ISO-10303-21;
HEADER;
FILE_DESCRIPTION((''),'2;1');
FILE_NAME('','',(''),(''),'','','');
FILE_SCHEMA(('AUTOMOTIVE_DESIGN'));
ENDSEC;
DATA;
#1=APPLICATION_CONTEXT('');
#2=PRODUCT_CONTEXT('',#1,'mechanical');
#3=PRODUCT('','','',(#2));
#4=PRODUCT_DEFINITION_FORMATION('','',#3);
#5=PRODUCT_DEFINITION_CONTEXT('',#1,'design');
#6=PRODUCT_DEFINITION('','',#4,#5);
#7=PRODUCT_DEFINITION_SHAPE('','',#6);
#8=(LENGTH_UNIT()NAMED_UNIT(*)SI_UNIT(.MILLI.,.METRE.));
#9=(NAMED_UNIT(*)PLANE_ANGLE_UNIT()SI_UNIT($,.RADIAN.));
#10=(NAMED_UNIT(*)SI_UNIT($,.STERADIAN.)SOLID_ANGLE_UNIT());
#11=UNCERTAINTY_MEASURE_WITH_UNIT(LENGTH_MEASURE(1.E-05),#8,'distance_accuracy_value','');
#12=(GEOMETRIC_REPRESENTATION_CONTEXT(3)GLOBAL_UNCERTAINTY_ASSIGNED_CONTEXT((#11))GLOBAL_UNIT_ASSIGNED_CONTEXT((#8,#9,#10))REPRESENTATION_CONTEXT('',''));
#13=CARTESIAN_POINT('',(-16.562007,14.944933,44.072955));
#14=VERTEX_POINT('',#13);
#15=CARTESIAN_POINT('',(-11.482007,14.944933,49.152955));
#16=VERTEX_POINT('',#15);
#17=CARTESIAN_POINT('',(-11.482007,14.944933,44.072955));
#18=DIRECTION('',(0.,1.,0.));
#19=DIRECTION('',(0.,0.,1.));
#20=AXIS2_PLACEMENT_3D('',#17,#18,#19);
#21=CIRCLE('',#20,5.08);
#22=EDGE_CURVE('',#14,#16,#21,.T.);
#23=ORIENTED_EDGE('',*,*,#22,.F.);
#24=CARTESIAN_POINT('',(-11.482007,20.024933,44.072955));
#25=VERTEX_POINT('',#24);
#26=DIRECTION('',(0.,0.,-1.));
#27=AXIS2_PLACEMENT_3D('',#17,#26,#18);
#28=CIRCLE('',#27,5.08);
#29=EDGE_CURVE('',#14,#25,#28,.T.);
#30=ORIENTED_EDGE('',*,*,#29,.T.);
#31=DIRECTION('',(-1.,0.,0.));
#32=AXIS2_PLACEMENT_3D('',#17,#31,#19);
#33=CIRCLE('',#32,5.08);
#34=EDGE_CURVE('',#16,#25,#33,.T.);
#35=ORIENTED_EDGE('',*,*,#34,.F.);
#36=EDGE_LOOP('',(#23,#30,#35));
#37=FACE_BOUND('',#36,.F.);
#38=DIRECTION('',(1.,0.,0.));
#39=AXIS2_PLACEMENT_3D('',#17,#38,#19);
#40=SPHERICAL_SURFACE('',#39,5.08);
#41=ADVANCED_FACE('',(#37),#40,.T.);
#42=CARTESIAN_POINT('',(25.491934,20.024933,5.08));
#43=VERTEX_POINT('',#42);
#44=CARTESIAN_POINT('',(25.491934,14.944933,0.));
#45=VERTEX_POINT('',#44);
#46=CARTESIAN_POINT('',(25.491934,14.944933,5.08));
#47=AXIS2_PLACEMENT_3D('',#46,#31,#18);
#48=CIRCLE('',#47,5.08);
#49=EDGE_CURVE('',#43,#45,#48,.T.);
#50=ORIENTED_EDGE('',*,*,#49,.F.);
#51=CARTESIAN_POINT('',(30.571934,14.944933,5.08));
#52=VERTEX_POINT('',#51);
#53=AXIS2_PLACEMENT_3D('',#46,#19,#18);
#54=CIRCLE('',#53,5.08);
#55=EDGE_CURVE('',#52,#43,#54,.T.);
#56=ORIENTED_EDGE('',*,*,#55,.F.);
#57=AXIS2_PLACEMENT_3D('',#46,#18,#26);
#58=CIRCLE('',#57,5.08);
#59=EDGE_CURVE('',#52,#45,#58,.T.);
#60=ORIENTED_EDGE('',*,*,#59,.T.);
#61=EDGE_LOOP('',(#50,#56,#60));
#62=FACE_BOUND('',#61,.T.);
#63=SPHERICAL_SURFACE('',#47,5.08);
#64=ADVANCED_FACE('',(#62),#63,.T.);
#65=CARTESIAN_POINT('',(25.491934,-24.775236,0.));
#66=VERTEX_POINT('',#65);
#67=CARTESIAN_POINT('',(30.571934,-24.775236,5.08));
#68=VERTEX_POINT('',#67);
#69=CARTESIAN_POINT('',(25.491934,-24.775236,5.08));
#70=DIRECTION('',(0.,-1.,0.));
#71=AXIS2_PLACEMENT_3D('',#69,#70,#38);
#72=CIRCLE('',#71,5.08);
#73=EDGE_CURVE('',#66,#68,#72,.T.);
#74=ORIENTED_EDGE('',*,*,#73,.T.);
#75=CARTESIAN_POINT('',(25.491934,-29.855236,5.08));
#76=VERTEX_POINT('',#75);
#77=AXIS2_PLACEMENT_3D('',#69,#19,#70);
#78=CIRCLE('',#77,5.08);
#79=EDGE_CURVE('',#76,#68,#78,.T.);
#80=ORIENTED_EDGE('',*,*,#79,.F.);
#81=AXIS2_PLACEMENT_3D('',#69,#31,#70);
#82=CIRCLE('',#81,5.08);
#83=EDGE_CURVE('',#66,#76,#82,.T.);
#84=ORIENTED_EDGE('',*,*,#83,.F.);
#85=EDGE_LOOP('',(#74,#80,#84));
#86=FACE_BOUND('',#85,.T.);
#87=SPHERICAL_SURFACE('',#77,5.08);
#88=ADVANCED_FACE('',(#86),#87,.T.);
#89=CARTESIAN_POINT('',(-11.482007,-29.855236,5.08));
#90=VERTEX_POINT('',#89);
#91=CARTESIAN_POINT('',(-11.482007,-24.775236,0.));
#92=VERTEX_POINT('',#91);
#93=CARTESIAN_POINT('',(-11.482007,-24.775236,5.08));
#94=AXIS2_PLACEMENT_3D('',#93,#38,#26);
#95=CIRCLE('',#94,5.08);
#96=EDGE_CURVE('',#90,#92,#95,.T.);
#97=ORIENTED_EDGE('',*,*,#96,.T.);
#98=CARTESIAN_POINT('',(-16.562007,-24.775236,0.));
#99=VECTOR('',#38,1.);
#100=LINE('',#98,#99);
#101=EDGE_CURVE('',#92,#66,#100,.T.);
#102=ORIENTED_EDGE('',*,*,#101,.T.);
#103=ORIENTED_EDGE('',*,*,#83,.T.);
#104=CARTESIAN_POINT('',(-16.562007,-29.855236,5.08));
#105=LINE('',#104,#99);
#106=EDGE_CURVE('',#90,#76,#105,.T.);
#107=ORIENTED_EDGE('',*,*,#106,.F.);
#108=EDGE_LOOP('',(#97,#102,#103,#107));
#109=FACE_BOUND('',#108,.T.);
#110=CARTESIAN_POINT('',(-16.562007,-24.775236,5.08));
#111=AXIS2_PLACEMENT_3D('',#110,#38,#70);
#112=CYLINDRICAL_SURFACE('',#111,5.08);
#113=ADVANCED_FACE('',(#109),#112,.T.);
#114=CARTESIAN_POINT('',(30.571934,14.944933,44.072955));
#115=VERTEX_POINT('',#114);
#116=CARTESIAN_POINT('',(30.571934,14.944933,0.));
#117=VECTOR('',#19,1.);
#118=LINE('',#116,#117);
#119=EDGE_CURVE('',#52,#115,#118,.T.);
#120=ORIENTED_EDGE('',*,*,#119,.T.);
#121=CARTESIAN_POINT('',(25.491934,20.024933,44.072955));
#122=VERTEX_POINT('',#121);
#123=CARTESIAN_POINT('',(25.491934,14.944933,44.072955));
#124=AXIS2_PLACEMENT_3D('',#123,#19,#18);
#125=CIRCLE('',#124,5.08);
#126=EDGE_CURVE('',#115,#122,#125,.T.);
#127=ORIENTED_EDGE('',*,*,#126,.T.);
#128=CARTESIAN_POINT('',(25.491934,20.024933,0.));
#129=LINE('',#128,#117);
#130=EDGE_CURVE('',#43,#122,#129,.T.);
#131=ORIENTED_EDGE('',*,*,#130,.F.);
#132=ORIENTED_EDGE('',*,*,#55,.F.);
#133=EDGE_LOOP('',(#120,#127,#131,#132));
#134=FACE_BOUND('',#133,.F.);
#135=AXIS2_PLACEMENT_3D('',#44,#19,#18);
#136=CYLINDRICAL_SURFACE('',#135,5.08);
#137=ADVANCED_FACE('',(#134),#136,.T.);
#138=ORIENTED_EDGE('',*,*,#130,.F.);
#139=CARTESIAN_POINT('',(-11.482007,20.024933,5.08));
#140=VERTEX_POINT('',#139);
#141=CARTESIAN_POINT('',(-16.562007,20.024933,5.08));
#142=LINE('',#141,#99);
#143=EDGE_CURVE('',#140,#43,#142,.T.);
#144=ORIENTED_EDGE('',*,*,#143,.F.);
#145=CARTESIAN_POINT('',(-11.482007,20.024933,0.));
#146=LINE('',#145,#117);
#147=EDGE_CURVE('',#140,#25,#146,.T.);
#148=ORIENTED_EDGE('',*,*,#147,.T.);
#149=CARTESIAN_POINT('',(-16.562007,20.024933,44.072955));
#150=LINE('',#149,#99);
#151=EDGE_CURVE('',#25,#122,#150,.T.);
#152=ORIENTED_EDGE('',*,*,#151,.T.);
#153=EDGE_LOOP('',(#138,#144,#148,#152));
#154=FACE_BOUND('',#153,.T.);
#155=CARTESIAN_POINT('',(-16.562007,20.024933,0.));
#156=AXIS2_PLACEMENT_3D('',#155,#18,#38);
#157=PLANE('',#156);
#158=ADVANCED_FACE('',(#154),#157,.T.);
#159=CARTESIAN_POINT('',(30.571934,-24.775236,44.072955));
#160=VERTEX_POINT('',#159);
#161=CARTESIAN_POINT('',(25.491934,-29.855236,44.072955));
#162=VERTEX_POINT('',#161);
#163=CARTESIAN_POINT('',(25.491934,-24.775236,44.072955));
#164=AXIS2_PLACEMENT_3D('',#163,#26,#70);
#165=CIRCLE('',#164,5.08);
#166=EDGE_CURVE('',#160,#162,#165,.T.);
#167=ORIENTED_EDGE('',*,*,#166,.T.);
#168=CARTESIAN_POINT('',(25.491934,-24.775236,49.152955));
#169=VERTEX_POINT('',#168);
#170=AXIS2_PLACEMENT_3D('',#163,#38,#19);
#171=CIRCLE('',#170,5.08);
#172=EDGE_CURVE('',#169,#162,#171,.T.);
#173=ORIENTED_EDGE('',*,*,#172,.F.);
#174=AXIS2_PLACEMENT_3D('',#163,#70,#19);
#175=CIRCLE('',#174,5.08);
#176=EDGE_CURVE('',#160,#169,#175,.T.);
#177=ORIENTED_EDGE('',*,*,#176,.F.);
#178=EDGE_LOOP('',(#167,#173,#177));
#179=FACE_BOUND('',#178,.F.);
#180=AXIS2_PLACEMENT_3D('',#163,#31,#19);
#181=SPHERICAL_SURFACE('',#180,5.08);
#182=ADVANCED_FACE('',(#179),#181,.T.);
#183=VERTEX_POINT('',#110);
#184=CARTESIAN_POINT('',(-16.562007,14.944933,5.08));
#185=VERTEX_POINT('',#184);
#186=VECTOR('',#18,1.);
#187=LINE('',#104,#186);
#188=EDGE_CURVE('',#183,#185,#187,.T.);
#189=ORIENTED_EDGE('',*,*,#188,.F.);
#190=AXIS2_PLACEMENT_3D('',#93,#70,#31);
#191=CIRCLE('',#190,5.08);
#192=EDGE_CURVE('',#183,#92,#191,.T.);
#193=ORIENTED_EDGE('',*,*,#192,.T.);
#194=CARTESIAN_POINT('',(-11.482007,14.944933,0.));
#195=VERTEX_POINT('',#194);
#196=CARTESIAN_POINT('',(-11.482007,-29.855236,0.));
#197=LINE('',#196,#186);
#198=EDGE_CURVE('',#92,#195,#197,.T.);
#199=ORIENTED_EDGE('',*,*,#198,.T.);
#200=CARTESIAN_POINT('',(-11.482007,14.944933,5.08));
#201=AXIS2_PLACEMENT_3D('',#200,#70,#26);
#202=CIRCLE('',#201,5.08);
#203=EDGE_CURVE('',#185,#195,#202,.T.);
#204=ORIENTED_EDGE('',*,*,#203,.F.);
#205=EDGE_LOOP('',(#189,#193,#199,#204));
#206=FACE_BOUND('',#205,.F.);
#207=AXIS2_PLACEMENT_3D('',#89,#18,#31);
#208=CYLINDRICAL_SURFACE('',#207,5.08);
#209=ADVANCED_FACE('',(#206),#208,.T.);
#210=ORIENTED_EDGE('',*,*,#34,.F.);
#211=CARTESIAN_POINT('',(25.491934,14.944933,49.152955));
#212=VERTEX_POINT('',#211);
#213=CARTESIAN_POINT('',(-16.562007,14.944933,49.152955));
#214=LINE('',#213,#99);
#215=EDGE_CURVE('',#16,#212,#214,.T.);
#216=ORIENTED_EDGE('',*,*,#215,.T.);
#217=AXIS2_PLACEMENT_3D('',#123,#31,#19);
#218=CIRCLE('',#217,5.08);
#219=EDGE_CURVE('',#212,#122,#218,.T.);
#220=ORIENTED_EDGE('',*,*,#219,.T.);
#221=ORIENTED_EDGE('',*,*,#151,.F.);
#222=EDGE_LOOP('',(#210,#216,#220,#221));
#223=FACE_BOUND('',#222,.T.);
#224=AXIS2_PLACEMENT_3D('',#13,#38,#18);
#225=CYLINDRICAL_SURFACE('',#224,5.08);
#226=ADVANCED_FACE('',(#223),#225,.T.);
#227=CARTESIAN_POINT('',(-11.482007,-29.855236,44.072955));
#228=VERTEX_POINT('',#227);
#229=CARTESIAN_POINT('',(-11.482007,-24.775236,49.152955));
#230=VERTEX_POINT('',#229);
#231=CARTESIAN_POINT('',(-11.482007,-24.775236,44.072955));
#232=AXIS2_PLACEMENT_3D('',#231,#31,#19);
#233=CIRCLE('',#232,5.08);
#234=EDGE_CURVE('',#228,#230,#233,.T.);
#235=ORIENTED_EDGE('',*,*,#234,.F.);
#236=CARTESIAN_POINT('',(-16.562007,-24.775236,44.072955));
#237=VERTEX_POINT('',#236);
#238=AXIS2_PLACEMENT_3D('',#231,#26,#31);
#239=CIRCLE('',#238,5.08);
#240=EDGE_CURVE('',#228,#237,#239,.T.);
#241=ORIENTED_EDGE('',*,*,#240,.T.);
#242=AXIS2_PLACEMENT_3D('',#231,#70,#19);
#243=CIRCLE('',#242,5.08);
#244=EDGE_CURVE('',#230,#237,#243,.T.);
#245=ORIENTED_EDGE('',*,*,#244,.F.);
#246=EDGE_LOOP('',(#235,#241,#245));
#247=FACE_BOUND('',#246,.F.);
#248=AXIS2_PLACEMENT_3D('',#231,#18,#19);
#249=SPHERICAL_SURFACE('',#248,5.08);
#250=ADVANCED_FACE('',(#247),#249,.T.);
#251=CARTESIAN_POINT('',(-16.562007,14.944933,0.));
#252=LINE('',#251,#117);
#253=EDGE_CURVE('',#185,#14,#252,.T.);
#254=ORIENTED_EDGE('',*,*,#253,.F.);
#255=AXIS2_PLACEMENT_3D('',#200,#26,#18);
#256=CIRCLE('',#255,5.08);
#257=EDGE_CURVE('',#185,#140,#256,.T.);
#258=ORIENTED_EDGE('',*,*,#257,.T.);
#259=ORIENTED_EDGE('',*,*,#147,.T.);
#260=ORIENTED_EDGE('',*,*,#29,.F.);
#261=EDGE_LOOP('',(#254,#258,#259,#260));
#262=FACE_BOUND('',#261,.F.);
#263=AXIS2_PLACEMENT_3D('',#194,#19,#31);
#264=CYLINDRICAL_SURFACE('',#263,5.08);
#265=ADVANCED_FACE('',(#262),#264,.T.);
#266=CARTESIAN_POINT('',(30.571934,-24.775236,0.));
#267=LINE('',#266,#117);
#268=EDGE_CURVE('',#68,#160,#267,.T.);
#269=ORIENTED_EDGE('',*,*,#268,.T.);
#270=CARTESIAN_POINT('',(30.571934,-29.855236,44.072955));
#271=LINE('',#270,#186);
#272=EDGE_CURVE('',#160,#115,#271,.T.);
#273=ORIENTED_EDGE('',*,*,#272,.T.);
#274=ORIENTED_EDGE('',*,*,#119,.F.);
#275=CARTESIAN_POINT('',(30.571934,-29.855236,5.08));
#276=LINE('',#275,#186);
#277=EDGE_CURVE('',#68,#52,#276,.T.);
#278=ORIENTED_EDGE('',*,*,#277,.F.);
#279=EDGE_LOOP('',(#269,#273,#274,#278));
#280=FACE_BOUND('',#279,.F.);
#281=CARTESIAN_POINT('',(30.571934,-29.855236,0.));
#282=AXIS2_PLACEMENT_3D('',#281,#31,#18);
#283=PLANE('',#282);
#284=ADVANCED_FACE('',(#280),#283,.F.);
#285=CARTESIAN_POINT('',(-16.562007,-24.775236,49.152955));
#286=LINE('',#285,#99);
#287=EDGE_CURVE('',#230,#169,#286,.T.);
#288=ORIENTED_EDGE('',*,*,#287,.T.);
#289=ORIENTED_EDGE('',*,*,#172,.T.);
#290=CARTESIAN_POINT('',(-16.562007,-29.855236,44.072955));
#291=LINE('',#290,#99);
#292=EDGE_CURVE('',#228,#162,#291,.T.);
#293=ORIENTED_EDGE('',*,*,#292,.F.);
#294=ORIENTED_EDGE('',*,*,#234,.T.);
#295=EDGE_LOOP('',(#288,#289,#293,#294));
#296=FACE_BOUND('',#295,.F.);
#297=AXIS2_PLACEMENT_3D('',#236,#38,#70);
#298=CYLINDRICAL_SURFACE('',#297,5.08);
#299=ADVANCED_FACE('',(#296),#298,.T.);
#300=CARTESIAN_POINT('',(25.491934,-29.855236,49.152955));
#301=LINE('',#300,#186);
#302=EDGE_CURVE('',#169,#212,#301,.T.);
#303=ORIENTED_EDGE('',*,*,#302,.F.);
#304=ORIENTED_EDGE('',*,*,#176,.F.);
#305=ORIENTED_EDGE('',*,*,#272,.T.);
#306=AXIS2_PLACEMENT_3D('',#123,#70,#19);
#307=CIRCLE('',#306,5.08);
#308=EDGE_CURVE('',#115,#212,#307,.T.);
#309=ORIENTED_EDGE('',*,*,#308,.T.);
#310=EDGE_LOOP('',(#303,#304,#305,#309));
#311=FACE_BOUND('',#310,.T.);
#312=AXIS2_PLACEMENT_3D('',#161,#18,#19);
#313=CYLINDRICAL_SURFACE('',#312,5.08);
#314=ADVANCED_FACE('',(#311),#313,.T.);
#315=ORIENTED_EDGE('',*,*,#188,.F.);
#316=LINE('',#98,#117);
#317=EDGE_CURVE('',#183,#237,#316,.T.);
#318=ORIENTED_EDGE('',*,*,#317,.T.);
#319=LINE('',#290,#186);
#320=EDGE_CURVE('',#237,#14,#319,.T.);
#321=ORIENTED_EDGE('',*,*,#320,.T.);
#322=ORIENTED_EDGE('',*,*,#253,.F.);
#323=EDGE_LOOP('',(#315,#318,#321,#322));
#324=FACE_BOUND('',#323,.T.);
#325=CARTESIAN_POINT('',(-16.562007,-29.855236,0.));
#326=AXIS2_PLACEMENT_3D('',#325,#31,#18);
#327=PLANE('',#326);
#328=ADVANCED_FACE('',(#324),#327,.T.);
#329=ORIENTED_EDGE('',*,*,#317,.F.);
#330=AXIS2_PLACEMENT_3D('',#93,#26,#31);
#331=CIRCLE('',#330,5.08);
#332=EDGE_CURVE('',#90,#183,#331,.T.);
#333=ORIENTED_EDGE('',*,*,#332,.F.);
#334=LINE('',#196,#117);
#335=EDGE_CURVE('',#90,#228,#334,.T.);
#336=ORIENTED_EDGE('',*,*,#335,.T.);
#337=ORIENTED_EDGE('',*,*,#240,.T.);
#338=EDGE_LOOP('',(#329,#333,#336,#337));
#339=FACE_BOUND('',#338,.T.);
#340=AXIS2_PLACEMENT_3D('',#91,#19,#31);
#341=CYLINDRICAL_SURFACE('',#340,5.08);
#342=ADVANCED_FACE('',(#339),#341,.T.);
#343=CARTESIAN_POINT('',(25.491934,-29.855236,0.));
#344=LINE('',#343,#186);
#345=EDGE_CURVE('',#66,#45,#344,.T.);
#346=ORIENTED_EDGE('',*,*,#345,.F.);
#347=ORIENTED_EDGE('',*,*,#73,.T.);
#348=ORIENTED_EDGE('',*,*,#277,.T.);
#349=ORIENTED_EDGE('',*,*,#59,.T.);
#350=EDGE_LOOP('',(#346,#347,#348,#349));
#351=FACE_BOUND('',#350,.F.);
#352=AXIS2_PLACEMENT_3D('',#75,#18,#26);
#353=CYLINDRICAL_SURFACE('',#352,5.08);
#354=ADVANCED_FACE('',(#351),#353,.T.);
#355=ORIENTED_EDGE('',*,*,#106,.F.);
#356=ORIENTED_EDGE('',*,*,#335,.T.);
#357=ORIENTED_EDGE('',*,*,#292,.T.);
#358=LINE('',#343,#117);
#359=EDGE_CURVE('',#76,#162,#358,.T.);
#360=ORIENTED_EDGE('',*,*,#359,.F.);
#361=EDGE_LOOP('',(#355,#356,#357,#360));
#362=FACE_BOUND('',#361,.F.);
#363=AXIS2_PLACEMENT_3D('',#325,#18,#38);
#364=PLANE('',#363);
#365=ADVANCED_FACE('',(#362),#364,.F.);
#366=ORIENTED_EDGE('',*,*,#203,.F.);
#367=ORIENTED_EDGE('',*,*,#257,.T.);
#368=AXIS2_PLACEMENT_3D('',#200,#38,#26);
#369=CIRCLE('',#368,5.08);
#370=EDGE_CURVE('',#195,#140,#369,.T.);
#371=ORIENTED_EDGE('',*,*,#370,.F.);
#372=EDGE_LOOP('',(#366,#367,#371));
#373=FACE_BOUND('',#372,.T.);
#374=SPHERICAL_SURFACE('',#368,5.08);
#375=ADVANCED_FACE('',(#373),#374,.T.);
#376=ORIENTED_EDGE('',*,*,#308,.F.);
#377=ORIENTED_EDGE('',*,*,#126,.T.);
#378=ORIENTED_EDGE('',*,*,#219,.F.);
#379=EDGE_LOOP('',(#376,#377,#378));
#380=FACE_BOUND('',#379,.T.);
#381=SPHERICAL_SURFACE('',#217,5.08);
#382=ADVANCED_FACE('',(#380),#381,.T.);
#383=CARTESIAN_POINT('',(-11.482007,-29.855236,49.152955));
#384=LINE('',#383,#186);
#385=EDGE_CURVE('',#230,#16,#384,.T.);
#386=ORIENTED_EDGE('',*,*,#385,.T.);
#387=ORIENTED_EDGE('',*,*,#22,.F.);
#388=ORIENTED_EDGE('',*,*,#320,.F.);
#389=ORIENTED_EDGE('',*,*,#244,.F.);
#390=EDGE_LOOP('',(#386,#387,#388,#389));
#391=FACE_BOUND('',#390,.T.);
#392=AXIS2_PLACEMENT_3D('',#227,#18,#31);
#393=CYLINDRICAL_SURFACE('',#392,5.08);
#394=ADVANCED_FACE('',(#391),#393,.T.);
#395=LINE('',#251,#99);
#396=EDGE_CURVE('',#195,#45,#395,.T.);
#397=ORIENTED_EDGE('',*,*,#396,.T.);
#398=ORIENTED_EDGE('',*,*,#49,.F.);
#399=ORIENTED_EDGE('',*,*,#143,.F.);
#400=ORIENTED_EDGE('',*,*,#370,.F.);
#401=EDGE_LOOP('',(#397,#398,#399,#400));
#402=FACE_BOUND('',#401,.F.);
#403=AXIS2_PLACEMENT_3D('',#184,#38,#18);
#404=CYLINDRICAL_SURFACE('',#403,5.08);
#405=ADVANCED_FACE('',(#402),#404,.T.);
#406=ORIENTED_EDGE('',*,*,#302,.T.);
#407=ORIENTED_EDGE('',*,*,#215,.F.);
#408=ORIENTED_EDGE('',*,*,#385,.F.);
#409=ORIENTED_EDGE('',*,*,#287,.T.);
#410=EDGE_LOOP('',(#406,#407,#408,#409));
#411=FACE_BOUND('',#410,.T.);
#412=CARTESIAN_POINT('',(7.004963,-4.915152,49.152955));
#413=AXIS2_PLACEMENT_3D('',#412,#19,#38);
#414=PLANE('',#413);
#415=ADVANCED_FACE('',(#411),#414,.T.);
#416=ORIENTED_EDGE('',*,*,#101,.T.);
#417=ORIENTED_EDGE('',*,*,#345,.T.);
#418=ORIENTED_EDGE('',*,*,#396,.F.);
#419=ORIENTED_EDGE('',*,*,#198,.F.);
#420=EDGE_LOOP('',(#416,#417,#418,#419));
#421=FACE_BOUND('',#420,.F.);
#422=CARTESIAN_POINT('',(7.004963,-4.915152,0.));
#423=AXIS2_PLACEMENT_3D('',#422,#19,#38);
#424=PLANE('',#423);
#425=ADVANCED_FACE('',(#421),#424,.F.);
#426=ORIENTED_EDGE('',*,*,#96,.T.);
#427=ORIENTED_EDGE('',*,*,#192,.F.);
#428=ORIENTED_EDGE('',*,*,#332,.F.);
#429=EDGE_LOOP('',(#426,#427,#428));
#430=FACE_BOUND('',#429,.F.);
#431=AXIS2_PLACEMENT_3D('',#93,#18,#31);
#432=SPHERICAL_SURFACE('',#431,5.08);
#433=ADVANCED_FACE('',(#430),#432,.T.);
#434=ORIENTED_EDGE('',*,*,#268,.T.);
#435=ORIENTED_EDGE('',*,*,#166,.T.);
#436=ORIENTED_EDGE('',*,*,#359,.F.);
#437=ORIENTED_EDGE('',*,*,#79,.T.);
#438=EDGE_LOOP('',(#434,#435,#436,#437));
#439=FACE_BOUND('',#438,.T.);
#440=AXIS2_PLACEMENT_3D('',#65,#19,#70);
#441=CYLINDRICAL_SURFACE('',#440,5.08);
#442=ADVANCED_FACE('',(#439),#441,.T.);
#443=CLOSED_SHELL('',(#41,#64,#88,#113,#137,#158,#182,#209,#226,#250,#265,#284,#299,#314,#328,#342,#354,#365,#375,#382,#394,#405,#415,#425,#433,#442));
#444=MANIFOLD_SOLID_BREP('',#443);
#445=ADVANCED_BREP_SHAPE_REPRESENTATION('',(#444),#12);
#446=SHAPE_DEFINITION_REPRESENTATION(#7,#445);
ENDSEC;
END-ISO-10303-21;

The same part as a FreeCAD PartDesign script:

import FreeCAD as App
import Part
import Sketcher

V = App.Vector
Q = App.Units.Quantity


def add_polygon(sketch, points):
    """Adds a closed chain of lines whose ends are joined by coincident constraints."""
    first, n = sketch.GeometryCount, len(points)
    for a, b in zip(points, points[1:] + points[:1]):
        sketch.addGeometry(Part.LineSegment(App.Vector(*a, 0), App.Vector(*b, 0)), False)
    for i in range(n):
        sketch.addConstraint(Sketcher.Constraint("Coincident", first + i, 2, first + (i + 1) % n, 1))

doc = App.newDocument("Part")
body = doc.addObject("PartDesign::Body", "Body")

sketch1 = body.newObject("Sketcher::SketchObject", "Sketch")
sketch1.AttachmentSupport = (doc.getObject("XY_Plane"), [""])
sketch1.MapMode = "FlatFace"
add_polygon(sketch1, [(-16.562007, 20.024933), (-16.562007, -29.855236), (30.571934, -29.855236), (30.571934, 20.024933)])
sketch1.addConstraint([
    Sketcher.Constraint("Vertical", 0),
    Sketcher.Constraint("Horizontal", 1),
    Sketcher.Constraint("Vertical", 2),
    Sketcher.Constraint("Horizontal", 3),
    Sketcher.Constraint("DistanceX", 1, 1, 1, 2, Q("47.133941 mm")),
    Sketcher.Constraint("DistanceY", 0, 2, 0, 1, Q("49.880169 mm")),
    Sketcher.Constraint("DistanceX", 0, 2, -1, 1, Q("16.562007 mm")),
    Sketcher.Constraint("DistanceY", 0, 2, -1, 1, Q("29.855236 mm")),
])
pad1 = body.newObject("PartDesign::Pad", "Pad")
pad1.Profile = sketch1
pad1.Length = 49.152955

sketch2 = body.newObject("Sketcher::SketchObject", "Sketch001")
sketch2.AttachmentSupport = (doc.getObject("XY_Plane"), [""])
sketch2.MapMode = "FlatFace"
add_polygon(sketch2, [(-16.562007, -29.855236), (-16.562007, 20.024933), (30.571934, 20.024933), (30.571934, -29.855236)])
sketch2.addConstraint([
    Sketcher.Constraint("Vertical", 0),
    Sketcher.Constraint("Horizontal", 1),
    Sketcher.Constraint("Vertical", 2),
    Sketcher.Constraint("Horizontal", 3),
    Sketcher.Constraint("DistanceX", 1, 1, 1, 2, Q("47.133941 mm")),
    Sketcher.Constraint("DistanceY", 0, 1, 0, 2, Q("49.880169 mm")),
    Sketcher.Constraint("DistanceX", 0, 2, -1, 1, Q("16.562007 mm")),
    Sketcher.Constraint("DistanceY", -1, 1, 0, 2, Q("20.024933 mm")),
])

sketch3 = body.newObject("Sketcher::SketchObject", "Sketch002")
sketch3.AttachmentSupport = (doc.getObject("XY_Plane"), [""])
sketch3.MapMode = "FlatFace"
sketch3.AttachmentOffset = App.Placement(V(0, 0, 49.152955), App.Rotation())
add_polygon(sketch3, [(-16.562007, 20.024933), (-16.562007, -29.855236), (30.571934, -29.855236), (30.571934, 20.024933)])
sketch3.addConstraint([
    Sketcher.Constraint("Vertical", 0),
    Sketcher.Constraint("Horizontal", 1),
    Sketcher.Constraint("Vertical", 2),
    Sketcher.Constraint("Horizontal", 3),
    Sketcher.Constraint("DistanceX", 1, 1, 1, 2, Q("47.133941 mm")),
    Sketcher.Constraint("DistanceY", 0, 2, 0, 1, Q("49.880169 mm")),
    Sketcher.Constraint("DistanceX", 0, 2, -1, 1, Q("16.562007 mm")),
    Sketcher.Constraint("DistanceY", 0, 2, -1, 1, Q("29.855236 mm")),
])

additiveloft = body.newObject("PartDesign::AdditiveLoft", "AdditiveLoft")
additiveloft.Profile = sketch2
additiveloft.Sections = [sketch3]
doc.recompute()

fillet = body.newObject("PartDesign::Fillet", "Fillet")
fillet.Base = (additiveloft, ["Edge1"])
fillet.UseAllEdges = True
fillet.Radius = Q("0.2 in")

doc.recompute()
